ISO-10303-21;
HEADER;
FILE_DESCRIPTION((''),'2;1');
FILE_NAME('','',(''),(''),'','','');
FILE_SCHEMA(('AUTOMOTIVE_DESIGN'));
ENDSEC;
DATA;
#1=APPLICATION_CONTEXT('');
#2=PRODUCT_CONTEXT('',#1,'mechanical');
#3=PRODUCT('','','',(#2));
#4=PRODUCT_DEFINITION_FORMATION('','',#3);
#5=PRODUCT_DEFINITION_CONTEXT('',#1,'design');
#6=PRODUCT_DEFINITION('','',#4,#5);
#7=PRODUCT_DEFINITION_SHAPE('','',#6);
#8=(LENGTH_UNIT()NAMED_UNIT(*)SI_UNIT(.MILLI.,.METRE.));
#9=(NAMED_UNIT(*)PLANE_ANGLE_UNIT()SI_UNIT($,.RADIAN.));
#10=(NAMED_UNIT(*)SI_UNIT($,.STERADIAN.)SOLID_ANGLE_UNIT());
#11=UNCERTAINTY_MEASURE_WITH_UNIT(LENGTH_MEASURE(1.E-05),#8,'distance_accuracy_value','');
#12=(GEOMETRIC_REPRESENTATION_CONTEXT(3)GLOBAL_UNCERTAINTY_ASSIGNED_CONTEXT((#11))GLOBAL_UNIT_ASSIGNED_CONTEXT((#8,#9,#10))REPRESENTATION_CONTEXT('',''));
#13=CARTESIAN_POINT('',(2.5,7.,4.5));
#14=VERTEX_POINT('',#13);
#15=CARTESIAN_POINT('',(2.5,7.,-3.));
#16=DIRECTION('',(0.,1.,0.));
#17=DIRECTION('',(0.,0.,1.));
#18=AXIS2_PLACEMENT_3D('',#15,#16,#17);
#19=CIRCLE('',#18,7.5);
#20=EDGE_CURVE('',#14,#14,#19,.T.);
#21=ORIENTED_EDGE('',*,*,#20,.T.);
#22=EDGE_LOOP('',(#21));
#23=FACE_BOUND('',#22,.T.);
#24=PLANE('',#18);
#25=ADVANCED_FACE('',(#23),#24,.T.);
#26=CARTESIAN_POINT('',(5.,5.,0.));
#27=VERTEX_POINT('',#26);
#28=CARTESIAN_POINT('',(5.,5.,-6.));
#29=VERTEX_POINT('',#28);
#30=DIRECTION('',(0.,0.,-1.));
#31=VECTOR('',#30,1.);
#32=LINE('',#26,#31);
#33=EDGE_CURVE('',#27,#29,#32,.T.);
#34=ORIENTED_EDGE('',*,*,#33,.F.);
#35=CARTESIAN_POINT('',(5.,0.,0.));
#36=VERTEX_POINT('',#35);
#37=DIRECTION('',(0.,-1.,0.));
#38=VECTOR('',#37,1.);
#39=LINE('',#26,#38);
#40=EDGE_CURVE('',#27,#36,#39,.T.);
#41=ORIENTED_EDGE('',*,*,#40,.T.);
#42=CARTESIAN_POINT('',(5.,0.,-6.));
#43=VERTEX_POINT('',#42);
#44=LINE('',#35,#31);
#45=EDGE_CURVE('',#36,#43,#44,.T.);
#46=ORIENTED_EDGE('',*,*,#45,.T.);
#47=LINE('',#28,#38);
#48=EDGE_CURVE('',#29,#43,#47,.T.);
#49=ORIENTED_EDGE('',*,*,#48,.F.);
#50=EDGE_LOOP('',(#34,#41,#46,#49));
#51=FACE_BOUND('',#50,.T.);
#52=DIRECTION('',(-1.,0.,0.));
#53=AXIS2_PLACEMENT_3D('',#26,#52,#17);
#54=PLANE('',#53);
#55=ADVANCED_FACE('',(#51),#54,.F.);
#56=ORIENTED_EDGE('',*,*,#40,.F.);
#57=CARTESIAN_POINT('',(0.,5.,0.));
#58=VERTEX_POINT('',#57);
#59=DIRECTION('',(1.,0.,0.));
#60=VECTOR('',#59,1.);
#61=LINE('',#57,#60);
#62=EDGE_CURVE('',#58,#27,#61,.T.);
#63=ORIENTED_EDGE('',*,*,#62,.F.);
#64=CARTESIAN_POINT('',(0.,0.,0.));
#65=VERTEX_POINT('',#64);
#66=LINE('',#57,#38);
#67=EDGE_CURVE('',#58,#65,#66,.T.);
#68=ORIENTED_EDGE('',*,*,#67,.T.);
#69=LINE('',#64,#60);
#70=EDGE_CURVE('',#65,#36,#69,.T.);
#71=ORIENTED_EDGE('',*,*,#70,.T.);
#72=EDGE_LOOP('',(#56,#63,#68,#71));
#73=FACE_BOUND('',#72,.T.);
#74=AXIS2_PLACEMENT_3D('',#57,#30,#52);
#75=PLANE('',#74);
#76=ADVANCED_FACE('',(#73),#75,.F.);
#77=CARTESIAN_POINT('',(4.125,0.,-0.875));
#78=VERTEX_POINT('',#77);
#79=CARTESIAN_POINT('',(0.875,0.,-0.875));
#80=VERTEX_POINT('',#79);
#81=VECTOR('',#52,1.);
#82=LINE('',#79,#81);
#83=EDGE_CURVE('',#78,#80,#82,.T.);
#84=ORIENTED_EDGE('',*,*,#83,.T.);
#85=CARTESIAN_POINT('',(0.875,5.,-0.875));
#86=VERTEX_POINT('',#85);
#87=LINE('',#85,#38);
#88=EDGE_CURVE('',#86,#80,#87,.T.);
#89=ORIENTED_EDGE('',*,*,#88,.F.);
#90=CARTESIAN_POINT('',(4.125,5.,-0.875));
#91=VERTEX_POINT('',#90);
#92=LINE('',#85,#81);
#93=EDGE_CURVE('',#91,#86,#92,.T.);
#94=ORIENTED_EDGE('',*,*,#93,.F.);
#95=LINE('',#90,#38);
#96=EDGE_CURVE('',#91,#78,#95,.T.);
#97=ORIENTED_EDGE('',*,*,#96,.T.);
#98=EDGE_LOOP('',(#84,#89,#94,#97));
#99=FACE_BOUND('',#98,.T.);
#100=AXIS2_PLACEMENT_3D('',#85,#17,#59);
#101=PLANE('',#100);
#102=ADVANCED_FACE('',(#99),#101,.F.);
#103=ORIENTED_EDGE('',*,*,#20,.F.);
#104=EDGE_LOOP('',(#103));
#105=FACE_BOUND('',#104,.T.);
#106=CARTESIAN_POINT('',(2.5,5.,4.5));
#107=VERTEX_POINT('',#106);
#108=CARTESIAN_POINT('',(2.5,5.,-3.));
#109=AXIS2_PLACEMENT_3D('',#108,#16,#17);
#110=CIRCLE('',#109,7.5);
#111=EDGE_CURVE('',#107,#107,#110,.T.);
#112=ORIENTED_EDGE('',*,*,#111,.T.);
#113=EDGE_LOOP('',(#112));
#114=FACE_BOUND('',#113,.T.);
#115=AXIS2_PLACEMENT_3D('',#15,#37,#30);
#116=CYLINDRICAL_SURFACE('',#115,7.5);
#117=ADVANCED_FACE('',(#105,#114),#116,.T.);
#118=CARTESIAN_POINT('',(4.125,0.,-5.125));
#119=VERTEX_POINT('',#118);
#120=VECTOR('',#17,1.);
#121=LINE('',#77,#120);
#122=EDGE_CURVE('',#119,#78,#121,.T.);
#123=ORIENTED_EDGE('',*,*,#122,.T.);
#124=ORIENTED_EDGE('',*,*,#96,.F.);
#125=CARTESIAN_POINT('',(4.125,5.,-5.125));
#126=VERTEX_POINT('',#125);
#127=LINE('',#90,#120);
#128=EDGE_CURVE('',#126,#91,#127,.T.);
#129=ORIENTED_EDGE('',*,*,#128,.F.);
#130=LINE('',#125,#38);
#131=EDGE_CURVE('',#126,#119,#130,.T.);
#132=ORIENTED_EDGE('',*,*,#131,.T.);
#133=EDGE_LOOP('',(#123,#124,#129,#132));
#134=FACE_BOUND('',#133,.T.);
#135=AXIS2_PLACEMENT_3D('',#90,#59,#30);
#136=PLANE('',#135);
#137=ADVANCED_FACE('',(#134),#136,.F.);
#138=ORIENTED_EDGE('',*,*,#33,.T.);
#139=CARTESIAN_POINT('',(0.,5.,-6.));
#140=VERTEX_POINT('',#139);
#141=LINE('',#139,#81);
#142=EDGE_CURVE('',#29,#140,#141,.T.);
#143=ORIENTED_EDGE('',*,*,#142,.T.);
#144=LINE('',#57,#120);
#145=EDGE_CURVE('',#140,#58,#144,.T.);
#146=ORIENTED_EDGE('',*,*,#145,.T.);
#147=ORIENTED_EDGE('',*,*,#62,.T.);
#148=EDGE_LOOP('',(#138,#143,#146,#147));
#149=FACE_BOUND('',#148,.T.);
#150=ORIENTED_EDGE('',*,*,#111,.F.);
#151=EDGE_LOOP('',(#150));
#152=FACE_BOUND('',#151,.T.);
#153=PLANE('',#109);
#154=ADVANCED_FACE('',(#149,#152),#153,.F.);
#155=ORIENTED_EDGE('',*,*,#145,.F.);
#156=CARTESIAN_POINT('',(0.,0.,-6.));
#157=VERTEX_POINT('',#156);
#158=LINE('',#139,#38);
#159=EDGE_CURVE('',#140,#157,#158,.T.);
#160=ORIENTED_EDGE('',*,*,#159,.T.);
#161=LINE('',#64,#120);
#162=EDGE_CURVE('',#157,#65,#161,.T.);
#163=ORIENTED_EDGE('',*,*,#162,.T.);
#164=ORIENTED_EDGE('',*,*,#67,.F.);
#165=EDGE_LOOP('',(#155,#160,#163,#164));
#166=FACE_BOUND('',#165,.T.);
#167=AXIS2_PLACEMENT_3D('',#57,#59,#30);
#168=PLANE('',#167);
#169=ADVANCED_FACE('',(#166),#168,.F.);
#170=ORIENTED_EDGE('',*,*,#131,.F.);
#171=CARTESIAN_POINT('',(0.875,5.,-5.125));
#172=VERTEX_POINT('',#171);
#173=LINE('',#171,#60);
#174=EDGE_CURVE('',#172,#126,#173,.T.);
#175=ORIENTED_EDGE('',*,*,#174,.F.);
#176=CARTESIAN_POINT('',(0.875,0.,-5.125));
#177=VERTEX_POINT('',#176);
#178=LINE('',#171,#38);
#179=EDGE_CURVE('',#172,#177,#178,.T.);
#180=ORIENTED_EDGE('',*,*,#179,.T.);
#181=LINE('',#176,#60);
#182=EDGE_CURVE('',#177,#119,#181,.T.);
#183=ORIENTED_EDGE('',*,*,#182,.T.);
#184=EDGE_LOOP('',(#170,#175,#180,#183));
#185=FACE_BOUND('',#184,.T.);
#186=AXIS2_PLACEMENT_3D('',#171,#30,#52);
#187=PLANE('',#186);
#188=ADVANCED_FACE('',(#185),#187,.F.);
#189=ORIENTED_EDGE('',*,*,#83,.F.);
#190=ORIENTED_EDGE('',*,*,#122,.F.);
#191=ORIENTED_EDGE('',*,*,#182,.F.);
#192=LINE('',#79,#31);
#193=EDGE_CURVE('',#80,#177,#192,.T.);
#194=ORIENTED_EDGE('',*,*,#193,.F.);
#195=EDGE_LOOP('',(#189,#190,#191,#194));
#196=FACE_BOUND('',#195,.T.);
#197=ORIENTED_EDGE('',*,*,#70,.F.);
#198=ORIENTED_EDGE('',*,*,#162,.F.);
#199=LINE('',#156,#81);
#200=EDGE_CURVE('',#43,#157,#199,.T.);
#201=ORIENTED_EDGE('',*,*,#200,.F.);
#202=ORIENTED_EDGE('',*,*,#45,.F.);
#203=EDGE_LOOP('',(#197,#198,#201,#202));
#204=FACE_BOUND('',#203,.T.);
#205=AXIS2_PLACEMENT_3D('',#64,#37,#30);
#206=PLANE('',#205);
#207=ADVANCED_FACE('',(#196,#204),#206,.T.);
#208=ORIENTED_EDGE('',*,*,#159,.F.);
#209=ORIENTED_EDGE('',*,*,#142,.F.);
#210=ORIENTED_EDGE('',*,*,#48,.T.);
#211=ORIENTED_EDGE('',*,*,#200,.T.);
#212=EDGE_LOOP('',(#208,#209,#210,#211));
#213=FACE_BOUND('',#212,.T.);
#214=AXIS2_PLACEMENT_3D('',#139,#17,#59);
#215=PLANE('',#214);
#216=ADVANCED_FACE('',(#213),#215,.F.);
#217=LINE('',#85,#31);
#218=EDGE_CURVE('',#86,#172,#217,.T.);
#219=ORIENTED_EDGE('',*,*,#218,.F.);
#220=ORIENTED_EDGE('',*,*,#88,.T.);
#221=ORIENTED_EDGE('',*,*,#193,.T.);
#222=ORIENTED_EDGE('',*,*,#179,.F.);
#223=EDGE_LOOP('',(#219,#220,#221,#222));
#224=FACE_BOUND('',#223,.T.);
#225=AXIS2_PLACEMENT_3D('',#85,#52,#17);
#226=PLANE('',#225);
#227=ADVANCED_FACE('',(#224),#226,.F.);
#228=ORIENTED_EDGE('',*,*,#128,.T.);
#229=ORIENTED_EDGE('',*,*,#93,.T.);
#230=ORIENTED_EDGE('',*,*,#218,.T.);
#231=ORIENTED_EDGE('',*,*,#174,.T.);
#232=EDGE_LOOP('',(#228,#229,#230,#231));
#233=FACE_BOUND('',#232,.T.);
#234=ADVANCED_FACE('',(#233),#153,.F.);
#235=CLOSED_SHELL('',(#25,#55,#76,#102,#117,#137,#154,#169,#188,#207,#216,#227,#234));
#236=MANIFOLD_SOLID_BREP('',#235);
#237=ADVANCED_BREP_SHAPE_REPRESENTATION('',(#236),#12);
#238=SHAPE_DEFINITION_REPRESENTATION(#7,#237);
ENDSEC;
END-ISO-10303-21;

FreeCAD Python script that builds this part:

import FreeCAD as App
import Part
import Sketcher
from FreeCAD import Vector

doc = App.newDocument("Part")
params = doc.addObject("Spreadsheet::Sheet", "Params")
for row, (alias, value) in enumerate([
    ("sketch1_width", "5 mm"),
    ("sketch1_height", "6 mm"),
    ("pad1_length", "5 mm"),
    ("sketch2_width", "3.25 mm"),
    ("sketch2_height", "4.25 mm"),
    ("pocket1_length", "5 mm"),
    ("sketch3_diameter", "15 mm"),
    ("pad2_length", "2 mm"),
], start=1):
    params.set(f"A{row}", alias)
    params.set(f"B{row}", "=" + value)
    params.setAlias(f"B{row}", alias)

body = doc.addObject("PartDesign::Body", "Body")

# Sketch on XZ plane
sketch1 = body.newObject("Sketcher::SketchObject", "Sketch")
sketch1.AttachmentSupport = (doc.getObject("XZ_Plane"), [""])
sketch1.MapMode = "FlatFace"
sketch1.addGeometry([
    Part.LineSegment(Vector(0, -6, 0), Vector(0, 0, 0)),
    Part.LineSegment(Vector(0, 0, 0), Vector(5, 0, 0)),
    Part.LineSegment(Vector(5, 0, 0), Vector(5, -6, 0)),
    Part.LineSegment(Vector(5, -6, 0), Vector(0, -6, 0)),
], False)
sketch1.addConstraint([
    Sketcher.Constraint("Coincident", 0, 2, 1, 1),
    Sketcher.Constraint("Coincident", 1, 2, 2, 1),
    Sketcher.Constraint("Coincident", 2, 2, 3, 1),
    Sketcher.Constraint("Coincident", 3, 2, 0, 1),
    Sketcher.Constraint("Vertical", 0),
    Sketcher.Constraint("Horizontal", 1),
    Sketcher.Constraint("Vertical", 2),
    Sketcher.Constraint("Horizontal", 3),
    Sketcher.Constraint("Coincident", 0, 2, -1, 1),
    Sketcher.Constraint("DistanceX", 1, 1, 1, 2, 5.0),
    Sketcher.Constraint("DistanceY", 0, 1, 0, 2, 6.0),
])
sketch1.setExpression("Constraints[9]", "Params.sketch1_width")
sketch1.setExpression("Constraints[10]", "Params.sketch1_height")
pad1 = body.newObject("PartDesign::Pad", "Pad")
pad1.Profile = sketch1
pad1.setExpression("Length", "Params.pad1_length")
pad1.Reversed = True

# Sketch on XZ plane
sketch2 = body.newObject("Sketcher::SketchObject", "Sketch001")
sketch2.AttachmentSupport = (doc.getObject("XZ_Plane"), [""])
sketch2.MapMode = "FlatFace"
sketch2.addGeometry([
    Part.LineSegment(Vector(0.875, -0.875, 0), Vector(0.875, -5.125, 0)),
    Part.LineSegment(Vector(0.875, -5.125, 0), Vector(4.125, -5.125, 0)),
    Part.LineSegment(Vector(4.125, -5.125, 0), Vector(4.125, -0.875, 0)),
    Part.LineSegment(Vector(4.125, -0.875, 0), Vector(0.875, -0.875, 0)),
], False)
sketch2.addConstraint([
    Sketcher.Constraint("Coincident", 0, 2, 1, 1),
    Sketcher.Constraint("Coincident", 1, 2, 2, 1),
    Sketcher.Constraint("Coincident", 2, 2, 3, 1),
    Sketcher.Constraint("Coincident", 3, 2, 0, 1),
    Sketcher.Constraint("Vertical", 0),
    Sketcher.Constraint("Horizontal", 1),
    Sketcher.Constraint("Vertical", 2),
    Sketcher.Constraint("Horizontal", 3),
    Sketcher.Constraint("DistanceX", 1, 1, 1, 2, 3.25),
    Sketcher.Constraint("DistanceY", 0, 2, 0, 1, 4.25),
    Sketcher.Constraint("DistanceX", -1, 1, 0, 2, 0.875),
    Sketcher.Constraint("DistanceY", 0, 2, -1, 1, 5.125),
])
sketch2.setExpression("Constraints[8]", "Params.sketch2_width")
sketch2.setExpression("Constraints[9]", "Params.sketch2_height")
pocket1 = body.newObject("PartDesign::Pocket", "Pocket")
pocket1.Profile = sketch2
pocket1.setExpression("Length", "Params.pocket1_length")

# Sketch on XZ plane
sketch3 = body.newObject("Sketcher::SketchObject", "Sketch002")
sketch3.AttachmentSupport = (doc.getObject("XZ_Plane"), [""])
sketch3.MapMode = "FlatFace"
sketch3.AttachmentOffset = App.Placement(Vector(0, 0, -5), App.Rotation())
sketch3.addGeometry(Part.Circle(Vector(2.5, -3, 0), Vector(0, 0, 1), 7.5), False)
sketch3.addConstraint([
    Sketcher.Constraint("Diameter", 0, 15.0),
    Sketcher.Constraint("DistanceY", 0, 3, -1, 1, 3.0),
    Sketcher.Constraint("DistanceX", -1, 1, 0, 3, 2.5),
])
sketch3.setExpression("Constraints[0]", "Params.sketch3_diameter")
pad2 = body.newObject("PartDesign::Pad", "Pad001")
pad2.Profile = sketch3
pad2.setExpression("Length", "Params.pad2_length")
pad2.Reversed = True

doc.recompute()
